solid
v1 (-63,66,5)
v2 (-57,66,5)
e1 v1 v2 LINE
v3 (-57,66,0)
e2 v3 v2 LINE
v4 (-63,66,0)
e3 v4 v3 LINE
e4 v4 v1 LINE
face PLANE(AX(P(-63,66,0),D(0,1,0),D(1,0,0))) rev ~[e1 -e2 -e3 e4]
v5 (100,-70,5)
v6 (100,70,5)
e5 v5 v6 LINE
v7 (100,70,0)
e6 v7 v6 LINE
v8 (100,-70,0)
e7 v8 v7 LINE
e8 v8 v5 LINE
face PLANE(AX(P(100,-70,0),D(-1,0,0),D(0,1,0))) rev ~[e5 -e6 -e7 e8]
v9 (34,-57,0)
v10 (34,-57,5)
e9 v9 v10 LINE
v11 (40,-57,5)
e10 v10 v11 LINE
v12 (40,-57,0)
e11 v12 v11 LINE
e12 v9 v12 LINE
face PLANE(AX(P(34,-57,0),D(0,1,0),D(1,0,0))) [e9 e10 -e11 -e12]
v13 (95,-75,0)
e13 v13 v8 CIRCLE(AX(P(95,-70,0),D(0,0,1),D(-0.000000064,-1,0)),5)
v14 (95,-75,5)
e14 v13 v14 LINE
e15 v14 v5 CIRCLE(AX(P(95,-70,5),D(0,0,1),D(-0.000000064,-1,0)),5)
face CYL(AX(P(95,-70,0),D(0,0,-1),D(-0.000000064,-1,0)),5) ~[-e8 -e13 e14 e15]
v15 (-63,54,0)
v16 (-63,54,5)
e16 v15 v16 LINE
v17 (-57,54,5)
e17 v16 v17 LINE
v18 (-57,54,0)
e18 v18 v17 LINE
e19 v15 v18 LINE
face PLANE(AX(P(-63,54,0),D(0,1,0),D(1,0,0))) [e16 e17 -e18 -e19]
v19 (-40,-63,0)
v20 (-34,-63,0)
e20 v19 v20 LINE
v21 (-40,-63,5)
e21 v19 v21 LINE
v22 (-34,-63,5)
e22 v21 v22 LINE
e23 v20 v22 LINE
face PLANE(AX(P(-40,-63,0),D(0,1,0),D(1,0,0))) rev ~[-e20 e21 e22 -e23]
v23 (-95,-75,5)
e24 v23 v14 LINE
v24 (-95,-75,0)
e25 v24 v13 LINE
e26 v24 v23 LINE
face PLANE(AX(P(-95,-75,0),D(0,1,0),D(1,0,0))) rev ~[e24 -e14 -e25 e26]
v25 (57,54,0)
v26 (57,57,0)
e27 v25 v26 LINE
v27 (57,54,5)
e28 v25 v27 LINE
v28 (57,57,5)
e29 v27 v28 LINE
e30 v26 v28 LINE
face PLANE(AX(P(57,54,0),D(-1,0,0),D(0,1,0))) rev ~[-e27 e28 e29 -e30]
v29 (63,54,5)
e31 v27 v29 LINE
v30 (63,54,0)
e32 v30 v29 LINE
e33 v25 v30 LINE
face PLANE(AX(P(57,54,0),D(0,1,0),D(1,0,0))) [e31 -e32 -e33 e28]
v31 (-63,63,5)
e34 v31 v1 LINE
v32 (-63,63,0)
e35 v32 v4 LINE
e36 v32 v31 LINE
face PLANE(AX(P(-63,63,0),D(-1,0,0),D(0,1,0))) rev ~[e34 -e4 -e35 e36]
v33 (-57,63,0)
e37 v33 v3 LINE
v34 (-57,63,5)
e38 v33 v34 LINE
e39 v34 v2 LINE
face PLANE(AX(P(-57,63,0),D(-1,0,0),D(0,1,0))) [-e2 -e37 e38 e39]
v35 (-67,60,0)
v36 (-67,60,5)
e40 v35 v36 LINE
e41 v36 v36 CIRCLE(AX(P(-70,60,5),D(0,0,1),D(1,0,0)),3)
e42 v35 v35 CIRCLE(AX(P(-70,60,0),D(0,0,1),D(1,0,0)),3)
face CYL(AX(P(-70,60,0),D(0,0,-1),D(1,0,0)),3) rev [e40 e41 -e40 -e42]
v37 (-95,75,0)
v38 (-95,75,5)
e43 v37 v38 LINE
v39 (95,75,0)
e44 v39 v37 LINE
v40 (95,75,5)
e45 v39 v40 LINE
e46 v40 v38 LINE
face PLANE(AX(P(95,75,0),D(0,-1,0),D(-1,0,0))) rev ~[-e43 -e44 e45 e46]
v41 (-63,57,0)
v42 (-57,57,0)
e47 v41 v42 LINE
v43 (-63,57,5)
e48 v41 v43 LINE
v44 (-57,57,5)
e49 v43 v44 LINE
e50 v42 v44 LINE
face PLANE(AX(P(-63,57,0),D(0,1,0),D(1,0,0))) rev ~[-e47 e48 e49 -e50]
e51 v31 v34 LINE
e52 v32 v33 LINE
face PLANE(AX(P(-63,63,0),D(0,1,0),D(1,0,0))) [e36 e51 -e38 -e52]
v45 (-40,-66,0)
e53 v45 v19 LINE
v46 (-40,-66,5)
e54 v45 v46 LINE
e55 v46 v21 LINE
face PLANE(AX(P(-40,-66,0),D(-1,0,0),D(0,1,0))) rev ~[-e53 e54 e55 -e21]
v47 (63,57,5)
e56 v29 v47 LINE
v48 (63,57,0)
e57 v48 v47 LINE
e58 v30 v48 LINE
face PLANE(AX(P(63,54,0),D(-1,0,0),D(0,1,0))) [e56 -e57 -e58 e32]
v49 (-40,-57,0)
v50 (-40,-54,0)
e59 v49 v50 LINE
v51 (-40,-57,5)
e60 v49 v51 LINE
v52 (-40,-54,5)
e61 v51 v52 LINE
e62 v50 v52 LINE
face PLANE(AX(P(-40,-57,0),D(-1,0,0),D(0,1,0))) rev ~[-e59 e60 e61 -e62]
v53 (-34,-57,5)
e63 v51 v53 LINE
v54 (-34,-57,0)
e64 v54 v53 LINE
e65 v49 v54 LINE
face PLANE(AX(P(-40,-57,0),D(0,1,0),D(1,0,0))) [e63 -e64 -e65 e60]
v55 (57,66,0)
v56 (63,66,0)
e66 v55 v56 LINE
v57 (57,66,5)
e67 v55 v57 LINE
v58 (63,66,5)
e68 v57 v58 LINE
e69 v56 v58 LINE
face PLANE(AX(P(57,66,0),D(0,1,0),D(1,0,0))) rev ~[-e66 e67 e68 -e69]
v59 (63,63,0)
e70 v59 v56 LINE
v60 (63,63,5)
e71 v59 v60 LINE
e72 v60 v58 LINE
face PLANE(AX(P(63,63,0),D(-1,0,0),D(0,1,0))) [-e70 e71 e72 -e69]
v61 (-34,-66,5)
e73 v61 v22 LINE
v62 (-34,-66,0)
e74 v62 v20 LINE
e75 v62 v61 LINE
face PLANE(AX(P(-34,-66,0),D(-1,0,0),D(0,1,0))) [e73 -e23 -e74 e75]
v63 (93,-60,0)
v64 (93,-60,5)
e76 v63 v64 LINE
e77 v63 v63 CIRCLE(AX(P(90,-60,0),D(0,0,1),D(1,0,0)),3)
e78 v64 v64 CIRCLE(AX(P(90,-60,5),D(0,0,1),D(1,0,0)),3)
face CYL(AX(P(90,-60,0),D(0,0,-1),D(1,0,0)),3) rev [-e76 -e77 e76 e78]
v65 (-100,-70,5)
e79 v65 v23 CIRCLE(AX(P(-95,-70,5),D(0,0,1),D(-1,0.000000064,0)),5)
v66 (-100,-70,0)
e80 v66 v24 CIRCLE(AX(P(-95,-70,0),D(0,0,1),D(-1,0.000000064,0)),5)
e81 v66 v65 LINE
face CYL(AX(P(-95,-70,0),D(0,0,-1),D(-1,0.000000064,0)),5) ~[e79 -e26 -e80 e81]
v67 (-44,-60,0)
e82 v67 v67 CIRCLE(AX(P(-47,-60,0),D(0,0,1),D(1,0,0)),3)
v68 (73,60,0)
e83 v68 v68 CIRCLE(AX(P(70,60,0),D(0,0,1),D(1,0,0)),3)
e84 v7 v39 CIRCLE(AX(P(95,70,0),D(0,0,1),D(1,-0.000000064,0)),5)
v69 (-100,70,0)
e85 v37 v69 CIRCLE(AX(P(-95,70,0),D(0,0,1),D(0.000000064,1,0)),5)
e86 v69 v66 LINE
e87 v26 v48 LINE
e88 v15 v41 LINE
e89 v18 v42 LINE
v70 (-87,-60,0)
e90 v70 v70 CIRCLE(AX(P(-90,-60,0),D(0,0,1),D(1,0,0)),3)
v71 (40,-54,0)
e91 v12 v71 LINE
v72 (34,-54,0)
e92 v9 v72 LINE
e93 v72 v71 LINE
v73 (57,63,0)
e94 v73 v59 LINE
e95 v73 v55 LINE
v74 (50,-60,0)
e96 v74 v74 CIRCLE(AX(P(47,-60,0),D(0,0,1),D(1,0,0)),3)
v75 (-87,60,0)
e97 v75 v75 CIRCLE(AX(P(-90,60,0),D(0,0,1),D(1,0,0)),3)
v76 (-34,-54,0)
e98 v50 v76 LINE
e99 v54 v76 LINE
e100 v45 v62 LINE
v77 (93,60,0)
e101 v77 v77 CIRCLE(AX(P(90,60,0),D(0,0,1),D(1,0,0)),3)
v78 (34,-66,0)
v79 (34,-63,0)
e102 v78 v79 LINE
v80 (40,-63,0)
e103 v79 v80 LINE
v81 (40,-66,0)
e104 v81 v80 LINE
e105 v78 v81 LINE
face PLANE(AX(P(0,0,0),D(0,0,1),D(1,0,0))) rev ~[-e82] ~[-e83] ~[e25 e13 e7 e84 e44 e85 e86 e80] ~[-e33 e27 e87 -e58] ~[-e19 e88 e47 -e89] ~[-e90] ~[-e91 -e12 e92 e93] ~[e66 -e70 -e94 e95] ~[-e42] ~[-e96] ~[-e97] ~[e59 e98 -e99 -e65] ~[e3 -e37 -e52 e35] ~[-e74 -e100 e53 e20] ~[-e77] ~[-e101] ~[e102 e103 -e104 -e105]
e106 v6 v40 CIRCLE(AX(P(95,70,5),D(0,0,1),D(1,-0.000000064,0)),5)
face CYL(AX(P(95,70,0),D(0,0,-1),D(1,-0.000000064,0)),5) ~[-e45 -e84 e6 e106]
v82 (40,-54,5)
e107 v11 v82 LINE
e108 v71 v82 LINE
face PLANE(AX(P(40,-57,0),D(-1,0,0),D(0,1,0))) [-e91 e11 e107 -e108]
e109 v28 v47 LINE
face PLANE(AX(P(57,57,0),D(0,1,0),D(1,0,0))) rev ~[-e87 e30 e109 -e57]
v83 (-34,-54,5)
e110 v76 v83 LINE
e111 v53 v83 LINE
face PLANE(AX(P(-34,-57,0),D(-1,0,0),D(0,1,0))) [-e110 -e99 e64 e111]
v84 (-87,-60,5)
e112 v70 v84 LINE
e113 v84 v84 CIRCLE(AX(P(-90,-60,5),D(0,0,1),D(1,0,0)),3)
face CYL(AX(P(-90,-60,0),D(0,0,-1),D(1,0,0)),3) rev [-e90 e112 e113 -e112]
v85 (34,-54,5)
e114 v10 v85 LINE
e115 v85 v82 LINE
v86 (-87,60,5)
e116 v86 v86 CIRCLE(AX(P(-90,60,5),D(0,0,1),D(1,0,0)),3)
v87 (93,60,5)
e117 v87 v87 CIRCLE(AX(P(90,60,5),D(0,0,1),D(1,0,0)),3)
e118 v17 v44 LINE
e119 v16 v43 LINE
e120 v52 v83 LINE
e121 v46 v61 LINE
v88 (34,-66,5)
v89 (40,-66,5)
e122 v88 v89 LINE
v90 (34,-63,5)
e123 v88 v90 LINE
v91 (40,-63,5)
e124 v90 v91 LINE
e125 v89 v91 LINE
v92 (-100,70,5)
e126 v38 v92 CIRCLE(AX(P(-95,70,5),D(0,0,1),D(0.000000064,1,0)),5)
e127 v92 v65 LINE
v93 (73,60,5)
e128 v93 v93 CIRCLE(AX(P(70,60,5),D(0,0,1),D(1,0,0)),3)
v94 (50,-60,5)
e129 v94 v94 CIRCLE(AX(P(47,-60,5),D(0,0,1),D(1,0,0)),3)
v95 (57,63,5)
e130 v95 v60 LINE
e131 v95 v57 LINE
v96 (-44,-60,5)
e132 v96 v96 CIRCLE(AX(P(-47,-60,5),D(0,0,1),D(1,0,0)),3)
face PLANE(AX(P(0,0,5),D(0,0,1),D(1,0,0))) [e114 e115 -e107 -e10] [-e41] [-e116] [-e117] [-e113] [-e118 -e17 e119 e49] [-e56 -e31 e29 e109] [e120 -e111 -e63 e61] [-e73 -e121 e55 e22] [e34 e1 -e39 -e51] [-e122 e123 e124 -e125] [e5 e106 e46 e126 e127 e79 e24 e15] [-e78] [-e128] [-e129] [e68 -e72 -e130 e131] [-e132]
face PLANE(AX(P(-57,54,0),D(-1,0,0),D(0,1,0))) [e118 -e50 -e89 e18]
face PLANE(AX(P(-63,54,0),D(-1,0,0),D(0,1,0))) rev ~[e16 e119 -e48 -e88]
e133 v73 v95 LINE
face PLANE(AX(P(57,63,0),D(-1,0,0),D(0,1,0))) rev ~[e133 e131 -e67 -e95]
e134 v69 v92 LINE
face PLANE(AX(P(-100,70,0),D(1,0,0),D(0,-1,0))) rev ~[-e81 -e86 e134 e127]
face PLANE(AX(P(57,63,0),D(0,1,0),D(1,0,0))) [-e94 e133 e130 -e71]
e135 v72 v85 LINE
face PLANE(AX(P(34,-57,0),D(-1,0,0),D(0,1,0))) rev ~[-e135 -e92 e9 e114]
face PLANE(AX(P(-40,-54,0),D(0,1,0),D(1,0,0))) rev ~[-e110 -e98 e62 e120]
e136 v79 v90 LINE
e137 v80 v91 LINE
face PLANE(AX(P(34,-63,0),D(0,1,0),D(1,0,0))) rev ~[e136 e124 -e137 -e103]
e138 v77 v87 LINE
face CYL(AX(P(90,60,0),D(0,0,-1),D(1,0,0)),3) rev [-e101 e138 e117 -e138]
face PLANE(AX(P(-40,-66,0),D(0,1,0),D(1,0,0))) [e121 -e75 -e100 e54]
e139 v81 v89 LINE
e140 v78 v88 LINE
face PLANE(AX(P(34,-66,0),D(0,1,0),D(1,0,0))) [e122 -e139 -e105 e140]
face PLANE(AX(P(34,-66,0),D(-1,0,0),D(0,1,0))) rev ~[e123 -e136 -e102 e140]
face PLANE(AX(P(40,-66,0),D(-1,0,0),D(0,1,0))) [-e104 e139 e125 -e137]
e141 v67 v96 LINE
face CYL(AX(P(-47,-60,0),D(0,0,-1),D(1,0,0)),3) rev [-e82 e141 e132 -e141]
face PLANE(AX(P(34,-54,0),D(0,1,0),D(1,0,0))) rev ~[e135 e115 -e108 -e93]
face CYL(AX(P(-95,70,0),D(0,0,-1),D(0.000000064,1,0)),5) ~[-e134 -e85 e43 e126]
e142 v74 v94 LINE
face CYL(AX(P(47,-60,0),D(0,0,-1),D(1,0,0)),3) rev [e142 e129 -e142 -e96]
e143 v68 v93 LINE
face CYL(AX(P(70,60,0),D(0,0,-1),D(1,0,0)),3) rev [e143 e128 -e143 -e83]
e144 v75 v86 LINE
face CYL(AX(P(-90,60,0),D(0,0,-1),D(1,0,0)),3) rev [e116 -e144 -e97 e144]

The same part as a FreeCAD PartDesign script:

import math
import FreeCAD as App
import Part
import Sketcher

V = App.Vector
Q = App.Units.Quantity


def add_polygon(sketch, points):
    """Adds a closed chain of lines whose ends are joined by coincident constraints."""
    first, n = sketch.GeometryCount, len(points)
    for a, b in zip(points, points[1:] + points[:1]):
        sketch.addGeometry(Part.LineSegment(App.Vector(*a, 0), App.Vector(*b, 0)), False)
    for i in range(n):
        sketch.addConstraint(Sketcher.Constraint("Coincident", first + i, 2, first + (i + 1) % n, 1))

doc = App.newDocument("Part")
params = doc.addObject("Spreadsheet::Sheet", "Params")
for row, (alias, value) in enumerate([
    ("sketch1_diameter", "6 mm"),
    ("sketch1_radius", "5 mm"),
    ("sketch1_width", "190 mm"),
    ("sketch1_width2", "6 mm"),
    ("sketch1_height", "140 mm"),
    ("pad1_length", "5 mm"),
], start=1):
    params.set(f"A{row}", alias)
    params.set(f"B{row}", "=" + value)
    params.setAlias(f"B{row}", alias)

body = doc.addObject("PartDesign::Body", "Body")

sketch1 = body.newObject("Sketcher::SketchObject", "Sketch")
sketch1.AttachmentSupport = (doc.getObject("XY_Plane"), [""])
sketch1.MapMode = "FlatFace"
sketch1.addGeometry(Part.ArcOfCircle(Part.Circle(V(95, 70, 0), V(0, 0, 1), 5), math.radians(-0.000004), math.radians(90.000004)), False)
sketch1.addGeometry(Part.LineSegment(V(95, 75, 0), V(-95, 75, 0)), False)
sketch1.addGeometry(Part.ArcOfCircle(Part.Circle(V(-95, 70, 0), V(0, 0, 1), 5), math.radians(89.999996), math.radians(180.000004)), False)
sketch1.addGeometry(Part.LineSegment(V(-100, 70, 0), V(-100, -70, 0)), False)
sketch1.addGeometry(Part.ArcOfCircle(Part.Circle(V(-95, -70, 0), V(0, 0, 1), 5), math.radians(179.999996), math.radians(270.000004)), False)
sketch1.addGeometry(Part.LineSegment(V(-95, -75, 0), V(95, -75, 0)), False)
sketch1.addGeometry(Part.ArcOfCircle(Part.Circle(V(95, -70, 0), V(0, 0, 1), 5), math.radians(-90.000004), math.radians(0.000004)), False)
sketch1.addGeometry(Part.LineSegment(V(100, -70, 0), V(100, 70, 0)), False)
sketch1.addGeometry(Part.Circle(V(-90, -60, 0), V(0, 0, 1), 3), False)
sketch1.addGeometry(Part.Circle(V(-47, -60, 0), V(0, 0, 1), 3), False)
add_polygon(sketch1, [(-34, -66), (-40, -66), (-40, -63), (-34, -63)])
add_polygon(sketch1, [(-34, -57), (-40, -57), (-40, -54), (-34, -54)])
add_polygon(sketch1, [(40, -66), (34, -66), (34, -63), (40, -63)])
add_polygon(sketch1, [(40, -57), (34, -57), (34, -54), (40, -54)])
sketch1.addGeometry(Part.Circle(V(47, -60, 0), V(0, 0, 1), 3), False)
sketch1.addGeometry(Part.Circle(V(90, -60, 0), V(0, 0, 1), 3), False)
sketch1.addGeometry(Part.Circle(V(-90, 60, 0), V(0, 0, 1), 3), False)
sketch1.addGeometry(Part.Circle(V(-70, 60, 0), V(0, 0, 1), 3), False)
add_polygon(sketch1, [(-57, 54), (-63, 54), (-63, 57), (-57, 57)])
add_polygon(sketch1, [(-57, 63), (-63, 63), (-63, 66), (-57, 66)])
add_polygon(sketch1, [(63, 54), (57, 54), (57, 57), (63, 57)])
add_polygon(sketch1, [(63, 63), (57, 63), (57, 66), (63, 66)])
sketch1.addGeometry(Part.Circle(V(70, 60, 0), V(0, 0, 1), 3), False)
sketch1.addGeometry(Part.Circle(V(90, 60, 0), V(0, 0, 1), 3), False)
sketch1.addConstraint([
    Sketcher.Constraint("Tangent", 0, 2, 1, 1),
    Sketcher.Constraint("Tangent", 1, 2, 2, 1),
    Sketcher.Constraint("Tangent", 2, 2, 3, 1),
    Sketcher.Constraint("Tangent", 3, 2, 4, 1),
    Sketcher.Constraint("Tangent", 4, 2, 5, 1),
    Sketcher.Constraint("Tangent", 5, 2, 6, 1),
    Sketcher.Constraint("Tangent", 6, 2, 7, 1),
    Sketcher.Constraint("Tangent", 7, 2, 0, 1),
    Sketcher.Constraint("Horizontal", 1),
    Sketcher.Constraint("Vertical", 3),
    Sketcher.Constraint("Horizontal", 5),
    Sketcher.Constraint("Vertical", 7),
    Sketcher.Constraint("Horizontal", 10),
    Sketcher.Constraint("Vertical", 11),
    Sketcher.Constraint("Horizontal", 12),
    Sketcher.Constraint("Vertical", 13),
    Sketcher.Constraint("Horizontal", 14),
    Sketcher.Constraint("Vertical", 15),
    Sketcher.Constraint("Horizontal", 16),
    Sketcher.Constraint("Vertical", 17),
    Sketcher.Constraint("Horizontal", 18),
    Sketcher.Constraint("Vertical", 19),
    Sketcher.Constraint("Horizontal", 20),
    Sketcher.Constraint("Vertical", 21),
    Sketcher.Constraint("Horizontal", 22),
    Sketcher.Constraint("Vertical", 23),
    Sketcher.Constraint("Horizontal", 24),
    Sketcher.Constraint("Vertical", 25),
    Sketcher.Constraint("Horizontal", 30),
    Sketcher.Constraint("Vertical", 31),
    Sketcher.Constraint("Horizontal", 32),
    Sketcher.Constraint("Vertical", 33),
    Sketcher.Constraint("Horizontal", 34),
    Sketcher.Constraint("Vertical", 35),
    Sketcher.Constraint("Horizontal", 36),
    Sketcher.Constraint("Vertical", 37),
    Sketcher.Constraint("Horizontal", 38),
    Sketcher.Constraint("Vertical", 39),
    Sketcher.Constraint("Horizontal", 40),
    Sketcher.Constraint("Vertical", 41),
    Sketcher.Constraint("Horizontal", 42),
    Sketcher.Constraint("Vertical", 43),
    Sketcher.Constraint("Horizontal", 44),
    Sketcher.Constraint("Vertical", 45),
    Sketcher.Constraint("Equal", 0, 2),
    Sketcher.Constraint("Equal", 2, 4),
    Sketcher.Constraint("Equal", 4, 6),
    Sketcher.Constraint("Equal", 8, 9),
    Sketcher.Constraint("Equal", 9, 26),
    Sketcher.Constraint("Equal", 26, 27),
    Sketcher.Constraint("Equal", 27, 28),
    Sketcher.Constraint("Equal", 28, 29),
    Sketcher.Constraint("Equal", 29, 46),
    Sketcher.Constraint("Equal", 46, 47),
    Sketcher.Constraint("Symmetric", 0, 3, 4, 3, -1, 1),
    Sketcher.Constraint("Symmetric", 27, 3, 28, 3, -1, 1),
    Sketcher.Constraint("Symmetric", 8, 3, 47, 3, -1, 1),
    Sketcher.Constraint("Symmetric", 9, 3, 26, 3, -2),
    Sketcher.Constraint("Symmetric", 8, 3, 27, 3, -2),
    Sketcher.Constraint("Symmetric", 29, 3, 46, 3, -2),
    Sketcher.Constraint("Symmetric", 13, 2, 18, 2, -2),
    Sketcher.Constraint("Symmetric", 11, 2, 20, 2, -2),
    Sketcher.Constraint("Symmetric", 17, 2, 22, 2, -2),
    Sketcher.Constraint("Symmetric", 15, 2, 24, 2, -2),
    Sketcher.Constraint("Symmetric", 33, 2, 38, 2, -2),
    Sketcher.Constraint("Symmetric", 31, 2, 40, 2, -2),
    Sketcher.Constraint("Symmetric", 37, 2, 42, 2, -2),
    Sketcher.Constraint("Symmetric", 35, 2, 44, 2, -2),
    Sketcher.Constraint("Horizontal", 8, 3, 9, 3),
    Sketcher.Constraint("Horizontal", 28, 3, 29, 3),
    Sketcher.Constraint("Vertical", 11, 2, 14, 2),
    Sketcher.Constraint("Vertical", 13, 2, 16, 2),
    Sketcher.Constraint("Vertical", 31, 2, 34, 2),
    Sketcher.Constraint("Vertical", 33, 2, 36, 2),
    Sketcher.Constraint("Equal", 24, 30),
    Sketcher.Constraint("Equal", 13, 15),
    Sketcher.Constraint("Equal", 25, 31),
    Sketcher.Constraint("Equal", 33, 35),
    Sketcher.Constraint("Diameter", 8, Q("6 mm")),
    Sketcher.Constraint("Radius", 0, Q("5 mm")),
    Sketcher.Constraint("DistanceX", 1, 2, 1, 1, Q("190 mm")),
    Sketcher.Constraint("DistanceX", 10, 2, 10, 1, Q("6 mm")),
    Sketcher.Constraint("DistanceY", 3, 2, 3, 1, Q("140 mm")),
    Sketcher.Constraint("DistanceY", 11, 1, 11, 2, Q("3 mm")),
    Sketcher.Constraint("DistanceX", 8, 3, -1, 1, Q("90 mm")),
    Sketcher.Constraint("DistanceY", 8, 3, -1, 1, Q("60 mm")),
    Sketcher.Constraint("DistanceX", 9, 3, -1, 1, Q("47 mm")),
    Sketcher.Constraint("DistanceX", 29, 3, -1, 1, Q("70 mm")),
    Sketcher.Constraint("DistanceX", 10, 2, -1, 1, Q("40 mm")),
    Sketcher.Constraint("DistanceY", 10, 2, -1, 1, Q("66 mm")),
    Sketcher.Constraint("DistanceY", 14, 2, -1, 1, Q("57 mm")),
    Sketcher.Constraint("DistanceX", 30, 2, -1, 1, Q("63 mm")),
    Sketcher.Constraint("DistanceY", -1, 1, 30, 2, Q("54 mm")),
    Sketcher.Constraint("DistanceY", -1, 1, 34, 2, Q("63 mm")),
])
sketch1.setExpression("Constraints[110]", "Params.sketch1_diameter")
sketch1.setExpression("Constraints[111]", "Params.sketch1_radius")
sketch1.setExpression("Constraints[112]", "Params.sketch1_width")
sketch1.setExpression("Constraints[113]", "Params.sketch1_width2")
sketch1.setExpression("Constraints[114]", "Params.sketch1_height")
pad1 = body.newObject("PartDesign::Pad", "Pad")
pad1.Profile = sketch1
pad1.setExpression("Length", "Params.pad1_length")

doc.recompute()
